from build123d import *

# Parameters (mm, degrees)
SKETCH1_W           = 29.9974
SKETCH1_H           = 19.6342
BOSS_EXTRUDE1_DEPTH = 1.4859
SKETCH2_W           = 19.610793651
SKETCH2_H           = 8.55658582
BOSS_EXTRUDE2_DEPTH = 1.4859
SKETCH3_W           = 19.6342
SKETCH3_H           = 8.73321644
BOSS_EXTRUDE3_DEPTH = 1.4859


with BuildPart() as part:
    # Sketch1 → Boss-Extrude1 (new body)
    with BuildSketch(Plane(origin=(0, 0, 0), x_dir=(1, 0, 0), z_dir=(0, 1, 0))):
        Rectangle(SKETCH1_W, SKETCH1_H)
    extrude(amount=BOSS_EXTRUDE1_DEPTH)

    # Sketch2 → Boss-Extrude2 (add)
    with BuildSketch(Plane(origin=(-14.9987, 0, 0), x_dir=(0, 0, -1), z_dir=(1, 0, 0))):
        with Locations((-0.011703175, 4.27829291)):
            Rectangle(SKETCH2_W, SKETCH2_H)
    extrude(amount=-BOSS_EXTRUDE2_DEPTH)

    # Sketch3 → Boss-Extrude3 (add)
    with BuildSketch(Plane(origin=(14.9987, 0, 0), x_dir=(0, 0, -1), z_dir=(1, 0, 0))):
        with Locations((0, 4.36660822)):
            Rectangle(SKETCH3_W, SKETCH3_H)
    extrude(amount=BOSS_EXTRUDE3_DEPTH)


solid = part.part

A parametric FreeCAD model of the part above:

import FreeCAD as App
import Part
import Sketcher
Q = App.Units.Quantity

doc = App.newDocument("Part")
params = doc.addObject("Spreadsheet::Sheet", "Params")
for row, (alias, value) in enumerate([
    ("sketch1_width", "1.181 in"),
    ("sketch1_height", "0.773 in"),
    ("pad1_length", "0.0585 in"),
    ("pad2_length", "0.0585 in"),
    ("sketch3_height", "0.773 in"),
    ("pad3_length", "0.0585 in"),
], start=1):
    params.set(f"A{row}", alias)
    params.set(f"B{row}", "=" + value)
    params.setAlias(f"B{row}", alias)

body = doc.addObject("PartDesign::Body", "Body")

# Sketch on XZ plane
sketch1 = doc.addObject("Sketcher::SketchObject", "Sketch")
body.addObject(sketch1)
sketch1.AttachmentSupport = (doc.XZ_Plane, [""])
sketch1.MapMode = "FlatFace"
sketch1.addGeometry(Part.LineSegment(App.Vector(-15, -10, 0), App.Vector(-15, 10, 0)), False)
sketch1.addGeometry(Part.LineSegment(App.Vector(-15, 10, 0), App.Vector(15, 10, 0)), False)
sketch1.addGeometry(Part.LineSegment(App.Vector(15, 10, 0), App.Vector(15, -10, 0)), False)
sketch1.addGeometry(Part.LineSegment(App.Vector(15, -10, 0), App.Vector(-15, -10, 0)), False)
sketch1.addConstraint(Sketcher.Constraint("Coincident", 0, 2, 1, 1))
sketch1.addConstraint(Sketcher.Constraint("Coincident", 1, 2, 2, 1))
sketch1.addConstraint(Sketcher.Constraint("Coincident", 2, 2, 3, 1))
sketch1.addConstraint(Sketcher.Constraint("Coincident", 3, 2, 0, 1))
sketch1.addConstraint(Sketcher.Constraint("Vertical", 0))
sketch1.addConstraint(Sketcher.Constraint("Horizontal", 1))
sketch1.addConstraint(Sketcher.Constraint("Vertical", 2))
sketch1.addConstraint(Sketcher.Constraint("Horizontal", 3))
sketch1.addConstraint(Sketcher.Constraint("Symmetric", 0, 2, 2, 2, -1, 1))
sketch1.addConstraint(Sketcher.Constraint("DistanceX", 1, 1, 1, 2, Q("1.181 in")))
sketch1.addConstraint(Sketcher.Constraint("DistanceY", 0, 1, 0, 2, Q("0.773 in")))
sketch1.setExpression("Constraints[9]", "Params.sketch1_width")
sketch1.setExpression("Constraints[10]", "Params.sketch1_height")
pad1 = doc.addObject("PartDesign::Pad", "Pad")
body.addObject(pad1)
pad1.Profile = sketch1
pad1.setExpression("Length", "Params.pad1_length")
pad1.Reversed = True

# Sketch on YZ plane
sketch2 = doc.addObject("Sketcher::SketchObject", "Sketch001")
body.addObject(sketch2)
sketch2.AttachmentSupport = (doc.YZ_Plane, [""])
sketch2.MapMode = "FlatFace"
sketch2.AttachmentOffset = App.Placement(App.Vector(0, 0, -0.5905 * 25.4), App.Rotation())
sketch2.addGeometry(Part.LineSegment(App.Vector(9, 10, 0), App.Vector(0, 10, 0)), False)
sketch2.addGeometry(Part.LineSegment(App.Vector(0, 10, 0), App.Vector(0, -10, 0)), False)
sketch2.addGeometry(Part.LineSegment(App.Vector(0, -10, 0), App.Vector(9, -10, 0)), False)
sketch2.addGeometry(Part.LineSegment(App.Vector(9, -10, 0), App.Vector(9, 10, 0)), False)
sketch2.addConstraint(Sketcher.Constraint("Coincident", 0, 2, 1, 1))
sketch2.addConstraint(Sketcher.Constraint("Coincident", 1, 2, 2, 1))
sketch2.addConstraint(Sketcher.Constraint("Coincident", 2, 2, 3, 1))
sketch2.addConstraint(Sketcher.Constraint("Coincident", 3, 2, 0, 1))
sketch2.addConstraint(Sketcher.Constraint("Horizontal", 0))
sketch2.addConstraint(Sketcher.Constraint("Vertical", 1))
sketch2.addConstraint(Sketcher.Constraint("Horizontal", 2))
sketch2.addConstraint(Sketcher.Constraint("Vertical", 3))
sketch2.addConstraint(Sketcher.Constraint("PointOnObject", 0, 2, -2))
sketch2.addConstraint(Sketcher.Constraint("DistanceY", -1, 1, 0, 2, Q("0.3865 in")))
sketch2.addConstraint(Sketcher.Constraint("DistanceX", 0, 2, 0, 1, Q("8.556586 mm")))
sketch2.addConstraint(Sketcher.Constraint("DistanceY", 1, 2, 1, 1, Q("19.610794 mm")))
pad2 = doc.addObject("PartDesign::Pad", "Pad001")
body.addObject(pad2)
pad2.Profile = sketch2
pad2.setExpression("Length", "Params.pad2_length")
pad2.Reversed = True

# Sketch on YZ plane
sketch3 = doc.addObject("Sketcher::SketchObject", "Sketch002")
body.addObject(sketch3)
sketch3.AttachmentSupport = (doc.YZ_Plane, [""])
sketch3.MapMode = "FlatFace"
sketch3.AttachmentOffset = App.Placement(App.Vector(0, 0, 0.5905 * 25.4), App.Rotation())
sketch3.addGeometry(Part.LineSegment(App.Vector(9, 10, 0), App.Vector(0, 10, 0)), False)
sketch3.addGeometry(Part.LineSegment(App.Vector(0, 10, 0), App.Vector(0, -10, 0)), False)
sketch3.addGeometry(Part.LineSegment(App.Vector(0, -10, 0), App.Vector(9, -10, 0)), False)
sketch3.addGeometry(Part.LineSegment(App.Vector(9, -10, 0), App.Vector(9, 10, 0)), False)
sketch3.addConstraint(Sketcher.Constraint("Coincident", 0, 2, 1, 1))
sketch3.addConstraint(Sketcher.Constraint("Coincident", 1, 2, 2, 1))
sketch3.addConstraint(Sketcher.Constraint("Coincident", 2, 2, 3, 1))
sketch3.addConstraint(Sketcher.Constraint("Coincident", 3, 2, 0, 1))
sketch3.addConstraint(Sketcher.Constraint("Horizontal", 0))
sketch3.addConstraint(Sketcher.Constraint("Vertical", 1))
sketch3.addConstraint(Sketcher.Constraint("Horizontal", 2))
sketch3.addConstraint(Sketcher.Constraint("Vertical", 3))
sketch3.addConstraint(Sketcher.Constraint("Symmetric", 0, 2, 1, 2, -1, 1))
sketch3.addConstraint(Sketcher.Constraint("DistanceY", 1, 2, 1, 1, Q("0.773 in")))
sketch3.addConstraint(Sketcher.Constraint("DistanceX", 0, 2, 0, 1, Q("8.733216 mm")))
sketch3.setExpression("Constraints[9]", "Params.sketch3_height")
pad3 = doc.addObject("PartDesign::Pad", "Pad002")
body.addObject(pad3)
pad3.Profile = sketch3
pad3.setExpression("Length", "Params.pad3_length")

doc.recompute()
